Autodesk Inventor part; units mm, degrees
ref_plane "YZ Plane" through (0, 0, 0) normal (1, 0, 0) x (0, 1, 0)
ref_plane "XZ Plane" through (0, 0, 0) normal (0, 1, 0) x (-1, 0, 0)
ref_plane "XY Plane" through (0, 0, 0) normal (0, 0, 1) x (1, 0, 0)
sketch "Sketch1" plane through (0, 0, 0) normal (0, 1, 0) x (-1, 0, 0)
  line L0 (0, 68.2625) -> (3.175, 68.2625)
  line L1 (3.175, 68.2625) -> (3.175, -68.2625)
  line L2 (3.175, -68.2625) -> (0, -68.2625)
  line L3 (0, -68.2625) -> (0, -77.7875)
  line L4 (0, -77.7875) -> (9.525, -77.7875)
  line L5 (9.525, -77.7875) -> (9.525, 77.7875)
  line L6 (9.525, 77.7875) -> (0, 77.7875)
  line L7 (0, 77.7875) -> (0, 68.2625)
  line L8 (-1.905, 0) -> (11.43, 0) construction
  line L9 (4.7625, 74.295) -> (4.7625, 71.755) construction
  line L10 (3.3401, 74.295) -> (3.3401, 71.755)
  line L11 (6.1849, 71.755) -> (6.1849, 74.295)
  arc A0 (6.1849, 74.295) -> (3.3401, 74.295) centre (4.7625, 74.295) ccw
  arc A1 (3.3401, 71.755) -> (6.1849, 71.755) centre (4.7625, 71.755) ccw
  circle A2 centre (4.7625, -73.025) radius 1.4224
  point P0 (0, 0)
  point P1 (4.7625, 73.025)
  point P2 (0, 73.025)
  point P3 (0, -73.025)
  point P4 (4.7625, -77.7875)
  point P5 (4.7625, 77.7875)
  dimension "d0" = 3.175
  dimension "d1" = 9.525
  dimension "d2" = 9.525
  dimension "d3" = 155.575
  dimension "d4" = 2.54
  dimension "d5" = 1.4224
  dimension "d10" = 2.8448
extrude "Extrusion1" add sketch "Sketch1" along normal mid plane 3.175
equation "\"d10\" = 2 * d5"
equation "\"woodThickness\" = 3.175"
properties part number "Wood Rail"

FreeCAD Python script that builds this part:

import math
import FreeCAD as App
import Part
import Sketcher
Q = App.Units.Quantity


def add_polygon(sketch, points):
    """Adds a closed chain of lines whose ends are joined by coincident constraints."""
    first, n = sketch.GeometryCount, len(points)
    for a, b in zip(points, points[1:] + points[:1]):
        sketch.addGeometry(Part.LineSegment(App.Vector(*a, 0), App.Vector(*b, 0)), False)
    for i in range(n):
        sketch.addConstraint(Sketcher.Constraint("Coincident", first + i, 2, first + (i + 1) % n, 1))

doc = App.newDocument("Part")
params = doc.addObject("Spreadsheet::Sheet", "Params")
for row, (alias, value) in enumerate([
    ("sketch1_diameter", "0.112 in"),
    ("sketch1_height", "0.1 in"),
    ("sketch1_width", "0.125 in"),
    ("sketch1_width2", "0.375 in"),
    ("sketch1_height2", "6.125 in"),
    ("pad1_length", "0.125 in"),
], start=1):
    params.set(f"A{row}", alias)
    params.set(f"B{row}", "=" + value)
    params.setAlias(f"B{row}", alias)

body = doc.addObject("PartDesign::Body", "Body")

# Sketch on XZ plane
sketch1 = doc.addObject("Sketcher::SketchObject", "Sketch")
body.addObject(sketch1)
sketch1.AttachmentSupport = (doc.XZ_Plane, [""])
sketch1.MapMode = "FlatFace"
add_polygon(sketch1, [(0, 77.8), (0, 68.3), (-3.2, 68.3), (-3.2, -68.3), (0, -68.3), (0, -77.8), (-9.5, -77.8), (-9.5, 77.8)])  # lines 0-7
sketch1.addGeometry(Part.Circle(App.Vector(-4.8, -73, 0), App.Vector(0, 0, 1), 1.4), False)  # 8
sketch1.addGeometry(Part.LineSegment(App.Vector(-3.3, 71.8, 0), App.Vector(-3.3, 74.3, 0)), False)  # 9
sketch1.addGeometry(Part.ArcOfCircle(Part.Circle(App.Vector(-4.8, 74.3, 0), App.Vector(0, 0, 1), 1.4), math.radians(0), math.radians(180)), False)  # 10
sketch1.addGeometry(Part.LineSegment(App.Vector(-6.2, 74.3, 0), App.Vector(-6.2, 71.8, 0)), False)  # 11
sketch1.addGeometry(Part.ArcOfCircle(Part.Circle(App.Vector(-4.8, 71.8, 0), App.Vector(0, 0, 1), 1.4), math.radians(180), math.radians(360)), False)  # 12
sketch1.addConstraint([
    Sketcher.Constraint("Tangent", 9, 2, 10, 1),
    Sketcher.Constraint("Tangent", 10, 2, 11, 1),
    Sketcher.Constraint("Tangent", 11, 2, 12, 1),
    Sketcher.Constraint("Tangent", 12, 2, 9, 1),
    Sketcher.Constraint("Vertical", 0),
    Sketcher.Constraint("Horizontal", 1),
    Sketcher.Constraint("Vertical", 2),
    Sketcher.Constraint("Horizontal", 3),
    Sketcher.Constraint("Vertical", 4),
    Sketcher.Constraint("Horizontal", 5),
    Sketcher.Constraint("Vertical", 6),
    Sketcher.Constraint("Horizontal", 7),
    Sketcher.Constraint("Vertical", 9),
    Sketcher.Constraint("Vertical", 11),
    Sketcher.Constraint("Equal", 8, 10),
    Sketcher.Constraint("Symmetric", 0, 2, 3, 2, -1, 1),
    Sketcher.Constraint("Symmetric", 4, 2, 7, 2, -1),
    Sketcher.Constraint("Vertical", 8, 3, 10, 3),
    Sketcher.Constraint("Equal", 7, 0),
    Sketcher.Constraint("Diameter", 8, Q("0.112 in")),
    Sketcher.Constraint("DistanceY", 9, 1, 9, 2, Q("0.1 in")),
    Sketcher.Constraint("DistanceX", 1, 2, 1, 1, Q("0.125 in")),
    Sketcher.Constraint("DistanceX", 5, 2, 5, 1, Q("0.375 in")),
    Sketcher.Constraint("DistanceY", 6, 1, 6, 2, Q("6.125 in")),
    Sketcher.Constraint("DistanceY", 8, 3, 10, 3, Q("5.8 in")),
    Sketcher.Constraint("DistanceX", 8, 3, -1, 1, Q("0.1875 in")),
    Sketcher.Constraint("DistanceY", 8, 3, -1, 1, Q("2.875 in")),
])
sketch1.setExpression("Constraints[27]", "Params.sketch1_diameter")
sketch1.setExpression("Constraints[28]", "Params.sketch1_height")
sketch1.setExpression("Constraints[29]", "Params.sketch1_width")
sketch1.setExpression("Constraints[30]", "Params.sketch1_width2")
sketch1.setExpression("Constraints[31]", "Params.sketch1_height2")
pad1 = doc.addObject("PartDesign::Pad", "Pad")
body.addObject(pad1)
pad1.Profile = sketch1
pad1.setExpression("Length", "Params.pad1_length")
pad1.Midplane = True

doc.recompute()
